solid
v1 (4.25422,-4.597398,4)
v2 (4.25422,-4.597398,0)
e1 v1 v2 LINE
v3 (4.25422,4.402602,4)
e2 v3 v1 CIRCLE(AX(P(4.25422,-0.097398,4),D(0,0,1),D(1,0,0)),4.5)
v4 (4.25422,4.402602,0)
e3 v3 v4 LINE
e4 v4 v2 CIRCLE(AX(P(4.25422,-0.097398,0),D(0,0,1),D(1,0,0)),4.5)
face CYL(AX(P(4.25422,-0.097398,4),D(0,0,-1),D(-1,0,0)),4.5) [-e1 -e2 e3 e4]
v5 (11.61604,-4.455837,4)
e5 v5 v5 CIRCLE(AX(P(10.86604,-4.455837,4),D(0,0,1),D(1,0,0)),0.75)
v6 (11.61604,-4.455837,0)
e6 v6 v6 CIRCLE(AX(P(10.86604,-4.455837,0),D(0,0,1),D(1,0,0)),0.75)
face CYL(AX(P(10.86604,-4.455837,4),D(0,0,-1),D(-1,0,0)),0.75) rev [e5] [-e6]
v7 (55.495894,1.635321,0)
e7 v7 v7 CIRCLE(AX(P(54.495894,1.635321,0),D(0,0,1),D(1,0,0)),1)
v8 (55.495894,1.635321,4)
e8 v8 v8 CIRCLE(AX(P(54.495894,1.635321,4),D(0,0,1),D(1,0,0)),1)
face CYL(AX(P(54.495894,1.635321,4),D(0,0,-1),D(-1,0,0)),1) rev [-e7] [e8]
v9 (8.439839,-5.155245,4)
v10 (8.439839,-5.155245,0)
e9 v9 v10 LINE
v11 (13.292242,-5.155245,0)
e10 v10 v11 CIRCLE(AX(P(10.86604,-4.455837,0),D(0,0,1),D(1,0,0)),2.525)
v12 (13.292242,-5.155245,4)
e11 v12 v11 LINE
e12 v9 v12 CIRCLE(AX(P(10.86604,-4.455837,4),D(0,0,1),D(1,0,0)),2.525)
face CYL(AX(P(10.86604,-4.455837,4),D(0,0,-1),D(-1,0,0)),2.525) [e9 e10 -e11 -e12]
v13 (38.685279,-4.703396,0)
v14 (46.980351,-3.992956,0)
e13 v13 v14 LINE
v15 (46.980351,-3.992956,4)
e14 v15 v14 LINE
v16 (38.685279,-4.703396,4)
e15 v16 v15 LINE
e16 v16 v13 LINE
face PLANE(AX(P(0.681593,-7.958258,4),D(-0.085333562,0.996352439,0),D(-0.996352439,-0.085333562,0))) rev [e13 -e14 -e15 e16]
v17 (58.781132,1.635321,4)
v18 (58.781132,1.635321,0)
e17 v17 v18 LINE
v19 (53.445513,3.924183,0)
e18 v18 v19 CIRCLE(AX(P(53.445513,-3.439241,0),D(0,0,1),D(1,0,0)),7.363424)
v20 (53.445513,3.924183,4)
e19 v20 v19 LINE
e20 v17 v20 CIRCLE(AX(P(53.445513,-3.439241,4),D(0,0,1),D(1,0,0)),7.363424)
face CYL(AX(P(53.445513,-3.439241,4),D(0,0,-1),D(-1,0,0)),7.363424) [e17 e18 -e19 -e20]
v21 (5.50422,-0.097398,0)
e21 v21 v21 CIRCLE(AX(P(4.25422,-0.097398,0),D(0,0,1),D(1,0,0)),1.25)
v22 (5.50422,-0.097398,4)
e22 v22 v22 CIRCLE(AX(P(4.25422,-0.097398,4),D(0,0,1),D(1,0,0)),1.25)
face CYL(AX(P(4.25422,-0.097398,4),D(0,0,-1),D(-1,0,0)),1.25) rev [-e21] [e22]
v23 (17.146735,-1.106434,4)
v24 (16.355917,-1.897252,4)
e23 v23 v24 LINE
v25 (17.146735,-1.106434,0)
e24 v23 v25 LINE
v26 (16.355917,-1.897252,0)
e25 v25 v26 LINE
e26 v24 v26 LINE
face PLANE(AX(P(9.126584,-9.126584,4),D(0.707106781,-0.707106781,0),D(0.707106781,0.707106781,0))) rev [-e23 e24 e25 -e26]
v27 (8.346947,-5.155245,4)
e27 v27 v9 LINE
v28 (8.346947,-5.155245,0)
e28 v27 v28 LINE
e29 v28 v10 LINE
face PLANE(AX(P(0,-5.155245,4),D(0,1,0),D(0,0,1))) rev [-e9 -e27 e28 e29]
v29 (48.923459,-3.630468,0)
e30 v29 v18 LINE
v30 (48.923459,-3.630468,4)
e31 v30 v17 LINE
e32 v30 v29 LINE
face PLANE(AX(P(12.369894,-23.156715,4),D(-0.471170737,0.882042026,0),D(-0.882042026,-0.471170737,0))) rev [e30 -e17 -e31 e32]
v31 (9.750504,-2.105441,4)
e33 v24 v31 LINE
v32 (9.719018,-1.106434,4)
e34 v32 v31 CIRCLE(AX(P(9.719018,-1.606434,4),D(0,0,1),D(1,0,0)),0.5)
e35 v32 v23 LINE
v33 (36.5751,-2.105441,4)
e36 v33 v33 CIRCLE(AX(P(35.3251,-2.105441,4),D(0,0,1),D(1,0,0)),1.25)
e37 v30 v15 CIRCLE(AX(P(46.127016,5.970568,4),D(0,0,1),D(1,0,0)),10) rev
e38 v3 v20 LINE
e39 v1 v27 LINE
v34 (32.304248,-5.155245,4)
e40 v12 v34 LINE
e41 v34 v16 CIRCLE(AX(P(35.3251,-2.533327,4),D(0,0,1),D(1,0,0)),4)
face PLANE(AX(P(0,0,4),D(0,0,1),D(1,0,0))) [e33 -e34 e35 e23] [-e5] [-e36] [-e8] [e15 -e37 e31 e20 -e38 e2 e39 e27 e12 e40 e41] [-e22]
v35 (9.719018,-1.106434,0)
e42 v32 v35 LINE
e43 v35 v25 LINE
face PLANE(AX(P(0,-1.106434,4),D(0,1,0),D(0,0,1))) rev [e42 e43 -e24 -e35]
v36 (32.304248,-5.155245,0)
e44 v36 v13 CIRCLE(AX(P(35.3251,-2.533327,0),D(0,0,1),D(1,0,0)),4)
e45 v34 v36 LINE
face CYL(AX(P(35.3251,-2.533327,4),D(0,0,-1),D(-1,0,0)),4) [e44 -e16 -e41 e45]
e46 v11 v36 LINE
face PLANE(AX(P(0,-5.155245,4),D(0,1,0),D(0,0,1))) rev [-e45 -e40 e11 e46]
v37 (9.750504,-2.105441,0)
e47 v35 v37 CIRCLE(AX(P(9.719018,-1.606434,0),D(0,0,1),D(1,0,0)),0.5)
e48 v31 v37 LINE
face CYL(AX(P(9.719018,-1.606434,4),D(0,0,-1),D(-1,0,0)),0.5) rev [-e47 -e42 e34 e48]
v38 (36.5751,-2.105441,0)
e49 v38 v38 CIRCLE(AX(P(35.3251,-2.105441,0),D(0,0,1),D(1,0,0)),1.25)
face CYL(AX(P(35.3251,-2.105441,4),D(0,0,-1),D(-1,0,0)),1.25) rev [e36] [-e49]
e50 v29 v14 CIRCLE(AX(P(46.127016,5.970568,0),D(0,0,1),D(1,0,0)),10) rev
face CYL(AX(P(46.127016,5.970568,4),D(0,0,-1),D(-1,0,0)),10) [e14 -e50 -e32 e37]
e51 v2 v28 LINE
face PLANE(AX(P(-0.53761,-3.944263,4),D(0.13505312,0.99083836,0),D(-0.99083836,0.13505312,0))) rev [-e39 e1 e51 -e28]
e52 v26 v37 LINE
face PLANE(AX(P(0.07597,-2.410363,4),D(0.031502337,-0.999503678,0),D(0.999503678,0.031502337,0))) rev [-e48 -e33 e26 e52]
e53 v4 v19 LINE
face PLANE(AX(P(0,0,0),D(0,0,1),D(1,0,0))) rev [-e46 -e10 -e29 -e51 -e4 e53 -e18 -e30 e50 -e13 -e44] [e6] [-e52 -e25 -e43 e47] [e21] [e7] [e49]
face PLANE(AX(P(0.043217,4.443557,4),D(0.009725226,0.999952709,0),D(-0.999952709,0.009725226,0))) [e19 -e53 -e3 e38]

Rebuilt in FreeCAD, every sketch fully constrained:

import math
import FreeCAD as App
import Part
import Sketcher
Q = App.Units.Quantity

doc = App.newDocument("Part")
body = doc.addObject("PartDesign::Body", "Body")

# Sketch on XY plane
sketch1 = body.newObject("Sketcher::SketchObject", "Sketch")
sketch1.AttachmentSupport = (doc.getObject("XY_Plane"), [""])
sketch1.MapMode = "FlatFace"
sketch1.addGeometry([
    Part.ArcOfCircle(Part.Circle(App.Vector(46.127016, 5.970568, 0), App.Vector(0, 0, 1), 10), math.radians(-85.104794), math.radians(-73.761023)),  # 0
    Part.LineSegment(App.Vector(48.923459, -3.630468, 0), App.Vector(58.781132, 1.635321, 0)),  # 1
    Part.ArcOfCircle(Part.Circle(App.Vector(53.445513, -3.439241, 0), App.Vector(0, 0, 1), 7.363424), math.radians(43.563488), math.radians(90)),  # 2
    Part.LineSegment(App.Vector(53.445513, 3.924183, 0), App.Vector(4.341743, 4.40175, 0)),  # 3
    Part.LineSegment(App.Vector(4.341743, 4.40175, 0), App.Vector(4.25422, 4.402602, 0)),  # 4
    Part.ArcOfCircle(Part.Circle(App.Vector(4.25422, -0.097398, 0), App.Vector(0, 0, 1), 4.5), math.radians(90), math.radians(270)),  # 5
    Part.LineSegment(App.Vector(4.25422, -4.597398, 0), App.Vector(8.346947, -5.155245, 0)),  # 6
    Part.LineSegment(App.Vector(8.346947, -5.155245, 0), App.Vector(8.439839, -5.155245, 0)),  # 7
    Part.ArcOfCircle(Part.Circle(App.Vector(10.86604, -4.455837, 0), App.Vector(0, 0, 1), 2.525), math.radians(-163.919166), math.radians(-16.080834)),  # 8
    Part.LineSegment(App.Vector(13.292242, -5.155245, 0), App.Vector(32.304248, -5.155245, 0)),  # 9
    Part.ArcOfCircle(Part.Circle(App.Vector(35.3251, -2.533327, 0), App.Vector(0, 0, 1), 4), math.radians(-139.043979), math.radians(-32.855164)),  # 10
    Part.LineSegment(App.Vector(38.685279, -4.703396, 0), App.Vector(46.980351, -3.992956, 0)),  # 11
    Part.Circle(App.Vector(10.86604, -4.455837, 0), App.Vector(0, 0, 1), 0.75),  # 12
    Part.ArcOfCircle(Part.Circle(App.Vector(9.719018, -1.606433, 0), App.Vector(0, 0, 1), 0.5), math.radians(-89.999999), math.radians(-86.389503)),  # 13
    Part.ArcOfCircle(Part.Circle(App.Vector(9.719018, -1.606434, 0), App.Vector(0, 0, 1), 0.5), math.radians(90), math.radians(270)),  # 14
    Part.LineSegment(App.Vector(9.719018, -1.106434, 0), App.Vector(17.146735, -1.106434, 0)),  # 15
    Part.LineSegment(App.Vector(17.146735, -1.106434, 0), App.Vector(16.355917, -1.897252, 0)),  # 16
    Part.LineSegment(App.Vector(16.355917, -1.897252, 0), App.Vector(9.750504, -2.105441, 0)),  # 17
    Part.Circle(App.Vector(35.3251, -2.105441, 0), App.Vector(0, 0, 1), 1.25),  # 18
    Part.Circle(App.Vector(4.25422, -0.097398, 0), App.Vector(0, 0, 1), 1.25),  # 19
    Part.Circle(App.Vector(54.495894, 1.635321, 0), App.Vector(0, 0, 1), 1),  # 20
], False)
sketch1.addConstraint([
    Sketcher.Constraint("Coincident", 0, 2, 1, 1),
    Sketcher.Constraint("Coincident", 1, 2, 2, 1),
    Sketcher.Constraint("Coincident", 2, 2, 3, 1),
    Sketcher.Constraint("Coincident", 3, 2, 4, 1),
    Sketcher.Constraint("Coincident", 4, 2, 5, 1),
    Sketcher.Constraint("Coincident", 5, 2, 6, 1),
    Sketcher.Constraint("Coincident", 6, 2, 7, 1),
    Sketcher.Constraint("Coincident", 7, 2, 8, 1),
    Sketcher.Constraint("Coincident", 8, 2, 9, 1),
    Sketcher.Constraint("Coincident", 9, 2, 10, 1),
    Sketcher.Constraint("Coincident", 10, 2, 11, 1),
    Sketcher.Constraint("Coincident", 11, 2, 0, 1),
    Sketcher.Constraint("Coincident", 13, 1, 14, 2),
    Sketcher.Constraint("Coincident", 14, 1, 15, 1),
    Sketcher.Constraint("Coincident", 15, 2, 16, 1),
    Sketcher.Constraint("Coincident", 16, 2, 17, 1),
    Sketcher.Constraint("Coincident", 17, 2, 13, 2),
    Sketcher.Constraint("Horizontal", 7),
    Sketcher.Constraint("Horizontal", 9),
    Sketcher.Constraint("Horizontal", 15),
    Sketcher.Constraint("Coincident", 12, 3, 8, 3),
    Sketcher.Constraint("Coincident", 14, 3, 13, 3),
    Sketcher.Constraint("Coincident", 19, 3, 5, 3),
    Sketcher.Constraint("Diameter", 20, Q("2 mm")),
    Sketcher.Constraint("Radius", 0, Q("10 mm")),
    Sketcher.Constraint("Radius", 10, Q("4 mm")),
    Sketcher.Constraint("Diameter", 12, Q("1.5 mm")),
    Sketcher.Constraint("Diameter", 18, Q("2.5 mm")),
    Sketcher.Constraint("Diameter", 19, Q("2.5 mm")),
    Sketcher.Constraint("Radius", 5, Q("4.5 mm")),
    Sketcher.Constraint("Radius", 13, Q("0.5 mm")),
    Sketcher.Constraint("Radius", 8, Q("2.525 mm")),
    Sketcher.Constraint("Radius", 2, Q("7.363424 mm")),
    Sketcher.Constraint("DistanceX", 13, 3, 0, 3, Q("36.407998 mm")),
    Sketcher.Constraint("DistanceY", 13, 3, 0, 3, Q("7.577002 mm")),
    Sketcher.Constraint("DistanceY", 5, 3, -1, 1, Q("0.097398 mm")),
    Sketcher.Constraint("DistanceX", -1, 1, 10, 3, Q("35.3251 mm")),
    Sketcher.Constraint("DistanceX", -1, 1, 18, 3, Q("35.3251 mm")),
    Sketcher.Constraint("DistanceY", 2, 3, 18, 3, Q("1.3338 mm")),
    Sketcher.Constraint("DistanceX", 7, 2, 8, 3, Q("2.426201 mm")),
    Sketcher.Constraint("DistanceX", 8, 3, 8, 2, Q("2.426201 mm")),
    Sketcher.Constraint("DistanceX", 13, 1, 16, 2, Q("6.636899 mm")),
    Sketcher.Constraint("Distance", 6, Q("4.130569 mm")),
    Sketcher.Constraint("Distance", 11, Q("8.32544 mm")),
    Sketcher.Constraint("DistanceX", 7, 1, 7, 2, Q("0.092892 mm")),
    Sketcher.Constraint("DistanceX", 9, 1, 9, 2, Q("19.012006 mm")),
    Sketcher.Constraint("DistanceX", 15, 1, 15, 2, Q("7.427717 mm")),
    Sketcher.Constraint("DistanceY", -1, 1, 0, 3, Q("5.970568 mm")),
    Sketcher.Constraint("DistanceY", 2, 3, -1, 1, Q("3.439241 mm")),
    Sketcher.Constraint("DistanceX", -1, 1, 5, 3, Q("4.25422 mm")),
    Sketcher.Constraint("DistanceX", -1, 1, 8, 3, Q("10.86604 mm")),
    Sketcher.Constraint("DistanceY", -1, 1, 20, 3, Q("1.635321 mm")),
    Sketcher.Constraint("DistanceX", -1, 1, 0, 2, Q("48.923459 mm")),
    Sketcher.Constraint("DistanceY", 0, 2, -1, 1, Q("3.630468 mm")),
    Sketcher.Constraint("DistanceY", -1, 1, 1, 2, Q("1.635321 mm")),
    Sketcher.Constraint("DistanceY", -1, 1, 3, 2, Q("4.40175 mm")),
    Sketcher.Constraint("DistanceX", -1, 1, 4, 2, Q("4.25422 mm")),
    Sketcher.Constraint("DistanceX", -1, 1, 5, 2, Q("4.25422 mm")),
    Sketcher.Constraint("DistanceX", -1, 1, 10, 2, Q("38.685279 mm")),
    Sketcher.Constraint("DistanceY", 16, 2, -1, 1, Q("1.897252 mm")),
    Sketcher.Constraint("DistanceY", 17, 2, -1, 1, Q("2.105441 mm")),
    Sketcher.Constraint("DistanceX", 2, 3, 20, 3, Q("1.050381 mm")),
    Sketcher.Constraint("DistanceX", 0, 3, 20, 3, Q("8.368878 mm")),
    Sketcher.Constraint("DistanceX", 2, 2, 20, 3, Q("1.050381 mm")),
    Sketcher.Constraint("DistanceX", 7, 2, 13, 1, Q("1.279179 mm")),
    Sketcher.Constraint("DistanceX", 16, 2, 15, 2, Q("0.790818 mm")),
    Sketcher.Constraint("Distance", 3, Q("49.106093 mm")),
])
pad1 = body.newObject("PartDesign::Pad", "Pad")
pad1.Profile = sketch1
pad1.Length = 4

doc.recompute()
